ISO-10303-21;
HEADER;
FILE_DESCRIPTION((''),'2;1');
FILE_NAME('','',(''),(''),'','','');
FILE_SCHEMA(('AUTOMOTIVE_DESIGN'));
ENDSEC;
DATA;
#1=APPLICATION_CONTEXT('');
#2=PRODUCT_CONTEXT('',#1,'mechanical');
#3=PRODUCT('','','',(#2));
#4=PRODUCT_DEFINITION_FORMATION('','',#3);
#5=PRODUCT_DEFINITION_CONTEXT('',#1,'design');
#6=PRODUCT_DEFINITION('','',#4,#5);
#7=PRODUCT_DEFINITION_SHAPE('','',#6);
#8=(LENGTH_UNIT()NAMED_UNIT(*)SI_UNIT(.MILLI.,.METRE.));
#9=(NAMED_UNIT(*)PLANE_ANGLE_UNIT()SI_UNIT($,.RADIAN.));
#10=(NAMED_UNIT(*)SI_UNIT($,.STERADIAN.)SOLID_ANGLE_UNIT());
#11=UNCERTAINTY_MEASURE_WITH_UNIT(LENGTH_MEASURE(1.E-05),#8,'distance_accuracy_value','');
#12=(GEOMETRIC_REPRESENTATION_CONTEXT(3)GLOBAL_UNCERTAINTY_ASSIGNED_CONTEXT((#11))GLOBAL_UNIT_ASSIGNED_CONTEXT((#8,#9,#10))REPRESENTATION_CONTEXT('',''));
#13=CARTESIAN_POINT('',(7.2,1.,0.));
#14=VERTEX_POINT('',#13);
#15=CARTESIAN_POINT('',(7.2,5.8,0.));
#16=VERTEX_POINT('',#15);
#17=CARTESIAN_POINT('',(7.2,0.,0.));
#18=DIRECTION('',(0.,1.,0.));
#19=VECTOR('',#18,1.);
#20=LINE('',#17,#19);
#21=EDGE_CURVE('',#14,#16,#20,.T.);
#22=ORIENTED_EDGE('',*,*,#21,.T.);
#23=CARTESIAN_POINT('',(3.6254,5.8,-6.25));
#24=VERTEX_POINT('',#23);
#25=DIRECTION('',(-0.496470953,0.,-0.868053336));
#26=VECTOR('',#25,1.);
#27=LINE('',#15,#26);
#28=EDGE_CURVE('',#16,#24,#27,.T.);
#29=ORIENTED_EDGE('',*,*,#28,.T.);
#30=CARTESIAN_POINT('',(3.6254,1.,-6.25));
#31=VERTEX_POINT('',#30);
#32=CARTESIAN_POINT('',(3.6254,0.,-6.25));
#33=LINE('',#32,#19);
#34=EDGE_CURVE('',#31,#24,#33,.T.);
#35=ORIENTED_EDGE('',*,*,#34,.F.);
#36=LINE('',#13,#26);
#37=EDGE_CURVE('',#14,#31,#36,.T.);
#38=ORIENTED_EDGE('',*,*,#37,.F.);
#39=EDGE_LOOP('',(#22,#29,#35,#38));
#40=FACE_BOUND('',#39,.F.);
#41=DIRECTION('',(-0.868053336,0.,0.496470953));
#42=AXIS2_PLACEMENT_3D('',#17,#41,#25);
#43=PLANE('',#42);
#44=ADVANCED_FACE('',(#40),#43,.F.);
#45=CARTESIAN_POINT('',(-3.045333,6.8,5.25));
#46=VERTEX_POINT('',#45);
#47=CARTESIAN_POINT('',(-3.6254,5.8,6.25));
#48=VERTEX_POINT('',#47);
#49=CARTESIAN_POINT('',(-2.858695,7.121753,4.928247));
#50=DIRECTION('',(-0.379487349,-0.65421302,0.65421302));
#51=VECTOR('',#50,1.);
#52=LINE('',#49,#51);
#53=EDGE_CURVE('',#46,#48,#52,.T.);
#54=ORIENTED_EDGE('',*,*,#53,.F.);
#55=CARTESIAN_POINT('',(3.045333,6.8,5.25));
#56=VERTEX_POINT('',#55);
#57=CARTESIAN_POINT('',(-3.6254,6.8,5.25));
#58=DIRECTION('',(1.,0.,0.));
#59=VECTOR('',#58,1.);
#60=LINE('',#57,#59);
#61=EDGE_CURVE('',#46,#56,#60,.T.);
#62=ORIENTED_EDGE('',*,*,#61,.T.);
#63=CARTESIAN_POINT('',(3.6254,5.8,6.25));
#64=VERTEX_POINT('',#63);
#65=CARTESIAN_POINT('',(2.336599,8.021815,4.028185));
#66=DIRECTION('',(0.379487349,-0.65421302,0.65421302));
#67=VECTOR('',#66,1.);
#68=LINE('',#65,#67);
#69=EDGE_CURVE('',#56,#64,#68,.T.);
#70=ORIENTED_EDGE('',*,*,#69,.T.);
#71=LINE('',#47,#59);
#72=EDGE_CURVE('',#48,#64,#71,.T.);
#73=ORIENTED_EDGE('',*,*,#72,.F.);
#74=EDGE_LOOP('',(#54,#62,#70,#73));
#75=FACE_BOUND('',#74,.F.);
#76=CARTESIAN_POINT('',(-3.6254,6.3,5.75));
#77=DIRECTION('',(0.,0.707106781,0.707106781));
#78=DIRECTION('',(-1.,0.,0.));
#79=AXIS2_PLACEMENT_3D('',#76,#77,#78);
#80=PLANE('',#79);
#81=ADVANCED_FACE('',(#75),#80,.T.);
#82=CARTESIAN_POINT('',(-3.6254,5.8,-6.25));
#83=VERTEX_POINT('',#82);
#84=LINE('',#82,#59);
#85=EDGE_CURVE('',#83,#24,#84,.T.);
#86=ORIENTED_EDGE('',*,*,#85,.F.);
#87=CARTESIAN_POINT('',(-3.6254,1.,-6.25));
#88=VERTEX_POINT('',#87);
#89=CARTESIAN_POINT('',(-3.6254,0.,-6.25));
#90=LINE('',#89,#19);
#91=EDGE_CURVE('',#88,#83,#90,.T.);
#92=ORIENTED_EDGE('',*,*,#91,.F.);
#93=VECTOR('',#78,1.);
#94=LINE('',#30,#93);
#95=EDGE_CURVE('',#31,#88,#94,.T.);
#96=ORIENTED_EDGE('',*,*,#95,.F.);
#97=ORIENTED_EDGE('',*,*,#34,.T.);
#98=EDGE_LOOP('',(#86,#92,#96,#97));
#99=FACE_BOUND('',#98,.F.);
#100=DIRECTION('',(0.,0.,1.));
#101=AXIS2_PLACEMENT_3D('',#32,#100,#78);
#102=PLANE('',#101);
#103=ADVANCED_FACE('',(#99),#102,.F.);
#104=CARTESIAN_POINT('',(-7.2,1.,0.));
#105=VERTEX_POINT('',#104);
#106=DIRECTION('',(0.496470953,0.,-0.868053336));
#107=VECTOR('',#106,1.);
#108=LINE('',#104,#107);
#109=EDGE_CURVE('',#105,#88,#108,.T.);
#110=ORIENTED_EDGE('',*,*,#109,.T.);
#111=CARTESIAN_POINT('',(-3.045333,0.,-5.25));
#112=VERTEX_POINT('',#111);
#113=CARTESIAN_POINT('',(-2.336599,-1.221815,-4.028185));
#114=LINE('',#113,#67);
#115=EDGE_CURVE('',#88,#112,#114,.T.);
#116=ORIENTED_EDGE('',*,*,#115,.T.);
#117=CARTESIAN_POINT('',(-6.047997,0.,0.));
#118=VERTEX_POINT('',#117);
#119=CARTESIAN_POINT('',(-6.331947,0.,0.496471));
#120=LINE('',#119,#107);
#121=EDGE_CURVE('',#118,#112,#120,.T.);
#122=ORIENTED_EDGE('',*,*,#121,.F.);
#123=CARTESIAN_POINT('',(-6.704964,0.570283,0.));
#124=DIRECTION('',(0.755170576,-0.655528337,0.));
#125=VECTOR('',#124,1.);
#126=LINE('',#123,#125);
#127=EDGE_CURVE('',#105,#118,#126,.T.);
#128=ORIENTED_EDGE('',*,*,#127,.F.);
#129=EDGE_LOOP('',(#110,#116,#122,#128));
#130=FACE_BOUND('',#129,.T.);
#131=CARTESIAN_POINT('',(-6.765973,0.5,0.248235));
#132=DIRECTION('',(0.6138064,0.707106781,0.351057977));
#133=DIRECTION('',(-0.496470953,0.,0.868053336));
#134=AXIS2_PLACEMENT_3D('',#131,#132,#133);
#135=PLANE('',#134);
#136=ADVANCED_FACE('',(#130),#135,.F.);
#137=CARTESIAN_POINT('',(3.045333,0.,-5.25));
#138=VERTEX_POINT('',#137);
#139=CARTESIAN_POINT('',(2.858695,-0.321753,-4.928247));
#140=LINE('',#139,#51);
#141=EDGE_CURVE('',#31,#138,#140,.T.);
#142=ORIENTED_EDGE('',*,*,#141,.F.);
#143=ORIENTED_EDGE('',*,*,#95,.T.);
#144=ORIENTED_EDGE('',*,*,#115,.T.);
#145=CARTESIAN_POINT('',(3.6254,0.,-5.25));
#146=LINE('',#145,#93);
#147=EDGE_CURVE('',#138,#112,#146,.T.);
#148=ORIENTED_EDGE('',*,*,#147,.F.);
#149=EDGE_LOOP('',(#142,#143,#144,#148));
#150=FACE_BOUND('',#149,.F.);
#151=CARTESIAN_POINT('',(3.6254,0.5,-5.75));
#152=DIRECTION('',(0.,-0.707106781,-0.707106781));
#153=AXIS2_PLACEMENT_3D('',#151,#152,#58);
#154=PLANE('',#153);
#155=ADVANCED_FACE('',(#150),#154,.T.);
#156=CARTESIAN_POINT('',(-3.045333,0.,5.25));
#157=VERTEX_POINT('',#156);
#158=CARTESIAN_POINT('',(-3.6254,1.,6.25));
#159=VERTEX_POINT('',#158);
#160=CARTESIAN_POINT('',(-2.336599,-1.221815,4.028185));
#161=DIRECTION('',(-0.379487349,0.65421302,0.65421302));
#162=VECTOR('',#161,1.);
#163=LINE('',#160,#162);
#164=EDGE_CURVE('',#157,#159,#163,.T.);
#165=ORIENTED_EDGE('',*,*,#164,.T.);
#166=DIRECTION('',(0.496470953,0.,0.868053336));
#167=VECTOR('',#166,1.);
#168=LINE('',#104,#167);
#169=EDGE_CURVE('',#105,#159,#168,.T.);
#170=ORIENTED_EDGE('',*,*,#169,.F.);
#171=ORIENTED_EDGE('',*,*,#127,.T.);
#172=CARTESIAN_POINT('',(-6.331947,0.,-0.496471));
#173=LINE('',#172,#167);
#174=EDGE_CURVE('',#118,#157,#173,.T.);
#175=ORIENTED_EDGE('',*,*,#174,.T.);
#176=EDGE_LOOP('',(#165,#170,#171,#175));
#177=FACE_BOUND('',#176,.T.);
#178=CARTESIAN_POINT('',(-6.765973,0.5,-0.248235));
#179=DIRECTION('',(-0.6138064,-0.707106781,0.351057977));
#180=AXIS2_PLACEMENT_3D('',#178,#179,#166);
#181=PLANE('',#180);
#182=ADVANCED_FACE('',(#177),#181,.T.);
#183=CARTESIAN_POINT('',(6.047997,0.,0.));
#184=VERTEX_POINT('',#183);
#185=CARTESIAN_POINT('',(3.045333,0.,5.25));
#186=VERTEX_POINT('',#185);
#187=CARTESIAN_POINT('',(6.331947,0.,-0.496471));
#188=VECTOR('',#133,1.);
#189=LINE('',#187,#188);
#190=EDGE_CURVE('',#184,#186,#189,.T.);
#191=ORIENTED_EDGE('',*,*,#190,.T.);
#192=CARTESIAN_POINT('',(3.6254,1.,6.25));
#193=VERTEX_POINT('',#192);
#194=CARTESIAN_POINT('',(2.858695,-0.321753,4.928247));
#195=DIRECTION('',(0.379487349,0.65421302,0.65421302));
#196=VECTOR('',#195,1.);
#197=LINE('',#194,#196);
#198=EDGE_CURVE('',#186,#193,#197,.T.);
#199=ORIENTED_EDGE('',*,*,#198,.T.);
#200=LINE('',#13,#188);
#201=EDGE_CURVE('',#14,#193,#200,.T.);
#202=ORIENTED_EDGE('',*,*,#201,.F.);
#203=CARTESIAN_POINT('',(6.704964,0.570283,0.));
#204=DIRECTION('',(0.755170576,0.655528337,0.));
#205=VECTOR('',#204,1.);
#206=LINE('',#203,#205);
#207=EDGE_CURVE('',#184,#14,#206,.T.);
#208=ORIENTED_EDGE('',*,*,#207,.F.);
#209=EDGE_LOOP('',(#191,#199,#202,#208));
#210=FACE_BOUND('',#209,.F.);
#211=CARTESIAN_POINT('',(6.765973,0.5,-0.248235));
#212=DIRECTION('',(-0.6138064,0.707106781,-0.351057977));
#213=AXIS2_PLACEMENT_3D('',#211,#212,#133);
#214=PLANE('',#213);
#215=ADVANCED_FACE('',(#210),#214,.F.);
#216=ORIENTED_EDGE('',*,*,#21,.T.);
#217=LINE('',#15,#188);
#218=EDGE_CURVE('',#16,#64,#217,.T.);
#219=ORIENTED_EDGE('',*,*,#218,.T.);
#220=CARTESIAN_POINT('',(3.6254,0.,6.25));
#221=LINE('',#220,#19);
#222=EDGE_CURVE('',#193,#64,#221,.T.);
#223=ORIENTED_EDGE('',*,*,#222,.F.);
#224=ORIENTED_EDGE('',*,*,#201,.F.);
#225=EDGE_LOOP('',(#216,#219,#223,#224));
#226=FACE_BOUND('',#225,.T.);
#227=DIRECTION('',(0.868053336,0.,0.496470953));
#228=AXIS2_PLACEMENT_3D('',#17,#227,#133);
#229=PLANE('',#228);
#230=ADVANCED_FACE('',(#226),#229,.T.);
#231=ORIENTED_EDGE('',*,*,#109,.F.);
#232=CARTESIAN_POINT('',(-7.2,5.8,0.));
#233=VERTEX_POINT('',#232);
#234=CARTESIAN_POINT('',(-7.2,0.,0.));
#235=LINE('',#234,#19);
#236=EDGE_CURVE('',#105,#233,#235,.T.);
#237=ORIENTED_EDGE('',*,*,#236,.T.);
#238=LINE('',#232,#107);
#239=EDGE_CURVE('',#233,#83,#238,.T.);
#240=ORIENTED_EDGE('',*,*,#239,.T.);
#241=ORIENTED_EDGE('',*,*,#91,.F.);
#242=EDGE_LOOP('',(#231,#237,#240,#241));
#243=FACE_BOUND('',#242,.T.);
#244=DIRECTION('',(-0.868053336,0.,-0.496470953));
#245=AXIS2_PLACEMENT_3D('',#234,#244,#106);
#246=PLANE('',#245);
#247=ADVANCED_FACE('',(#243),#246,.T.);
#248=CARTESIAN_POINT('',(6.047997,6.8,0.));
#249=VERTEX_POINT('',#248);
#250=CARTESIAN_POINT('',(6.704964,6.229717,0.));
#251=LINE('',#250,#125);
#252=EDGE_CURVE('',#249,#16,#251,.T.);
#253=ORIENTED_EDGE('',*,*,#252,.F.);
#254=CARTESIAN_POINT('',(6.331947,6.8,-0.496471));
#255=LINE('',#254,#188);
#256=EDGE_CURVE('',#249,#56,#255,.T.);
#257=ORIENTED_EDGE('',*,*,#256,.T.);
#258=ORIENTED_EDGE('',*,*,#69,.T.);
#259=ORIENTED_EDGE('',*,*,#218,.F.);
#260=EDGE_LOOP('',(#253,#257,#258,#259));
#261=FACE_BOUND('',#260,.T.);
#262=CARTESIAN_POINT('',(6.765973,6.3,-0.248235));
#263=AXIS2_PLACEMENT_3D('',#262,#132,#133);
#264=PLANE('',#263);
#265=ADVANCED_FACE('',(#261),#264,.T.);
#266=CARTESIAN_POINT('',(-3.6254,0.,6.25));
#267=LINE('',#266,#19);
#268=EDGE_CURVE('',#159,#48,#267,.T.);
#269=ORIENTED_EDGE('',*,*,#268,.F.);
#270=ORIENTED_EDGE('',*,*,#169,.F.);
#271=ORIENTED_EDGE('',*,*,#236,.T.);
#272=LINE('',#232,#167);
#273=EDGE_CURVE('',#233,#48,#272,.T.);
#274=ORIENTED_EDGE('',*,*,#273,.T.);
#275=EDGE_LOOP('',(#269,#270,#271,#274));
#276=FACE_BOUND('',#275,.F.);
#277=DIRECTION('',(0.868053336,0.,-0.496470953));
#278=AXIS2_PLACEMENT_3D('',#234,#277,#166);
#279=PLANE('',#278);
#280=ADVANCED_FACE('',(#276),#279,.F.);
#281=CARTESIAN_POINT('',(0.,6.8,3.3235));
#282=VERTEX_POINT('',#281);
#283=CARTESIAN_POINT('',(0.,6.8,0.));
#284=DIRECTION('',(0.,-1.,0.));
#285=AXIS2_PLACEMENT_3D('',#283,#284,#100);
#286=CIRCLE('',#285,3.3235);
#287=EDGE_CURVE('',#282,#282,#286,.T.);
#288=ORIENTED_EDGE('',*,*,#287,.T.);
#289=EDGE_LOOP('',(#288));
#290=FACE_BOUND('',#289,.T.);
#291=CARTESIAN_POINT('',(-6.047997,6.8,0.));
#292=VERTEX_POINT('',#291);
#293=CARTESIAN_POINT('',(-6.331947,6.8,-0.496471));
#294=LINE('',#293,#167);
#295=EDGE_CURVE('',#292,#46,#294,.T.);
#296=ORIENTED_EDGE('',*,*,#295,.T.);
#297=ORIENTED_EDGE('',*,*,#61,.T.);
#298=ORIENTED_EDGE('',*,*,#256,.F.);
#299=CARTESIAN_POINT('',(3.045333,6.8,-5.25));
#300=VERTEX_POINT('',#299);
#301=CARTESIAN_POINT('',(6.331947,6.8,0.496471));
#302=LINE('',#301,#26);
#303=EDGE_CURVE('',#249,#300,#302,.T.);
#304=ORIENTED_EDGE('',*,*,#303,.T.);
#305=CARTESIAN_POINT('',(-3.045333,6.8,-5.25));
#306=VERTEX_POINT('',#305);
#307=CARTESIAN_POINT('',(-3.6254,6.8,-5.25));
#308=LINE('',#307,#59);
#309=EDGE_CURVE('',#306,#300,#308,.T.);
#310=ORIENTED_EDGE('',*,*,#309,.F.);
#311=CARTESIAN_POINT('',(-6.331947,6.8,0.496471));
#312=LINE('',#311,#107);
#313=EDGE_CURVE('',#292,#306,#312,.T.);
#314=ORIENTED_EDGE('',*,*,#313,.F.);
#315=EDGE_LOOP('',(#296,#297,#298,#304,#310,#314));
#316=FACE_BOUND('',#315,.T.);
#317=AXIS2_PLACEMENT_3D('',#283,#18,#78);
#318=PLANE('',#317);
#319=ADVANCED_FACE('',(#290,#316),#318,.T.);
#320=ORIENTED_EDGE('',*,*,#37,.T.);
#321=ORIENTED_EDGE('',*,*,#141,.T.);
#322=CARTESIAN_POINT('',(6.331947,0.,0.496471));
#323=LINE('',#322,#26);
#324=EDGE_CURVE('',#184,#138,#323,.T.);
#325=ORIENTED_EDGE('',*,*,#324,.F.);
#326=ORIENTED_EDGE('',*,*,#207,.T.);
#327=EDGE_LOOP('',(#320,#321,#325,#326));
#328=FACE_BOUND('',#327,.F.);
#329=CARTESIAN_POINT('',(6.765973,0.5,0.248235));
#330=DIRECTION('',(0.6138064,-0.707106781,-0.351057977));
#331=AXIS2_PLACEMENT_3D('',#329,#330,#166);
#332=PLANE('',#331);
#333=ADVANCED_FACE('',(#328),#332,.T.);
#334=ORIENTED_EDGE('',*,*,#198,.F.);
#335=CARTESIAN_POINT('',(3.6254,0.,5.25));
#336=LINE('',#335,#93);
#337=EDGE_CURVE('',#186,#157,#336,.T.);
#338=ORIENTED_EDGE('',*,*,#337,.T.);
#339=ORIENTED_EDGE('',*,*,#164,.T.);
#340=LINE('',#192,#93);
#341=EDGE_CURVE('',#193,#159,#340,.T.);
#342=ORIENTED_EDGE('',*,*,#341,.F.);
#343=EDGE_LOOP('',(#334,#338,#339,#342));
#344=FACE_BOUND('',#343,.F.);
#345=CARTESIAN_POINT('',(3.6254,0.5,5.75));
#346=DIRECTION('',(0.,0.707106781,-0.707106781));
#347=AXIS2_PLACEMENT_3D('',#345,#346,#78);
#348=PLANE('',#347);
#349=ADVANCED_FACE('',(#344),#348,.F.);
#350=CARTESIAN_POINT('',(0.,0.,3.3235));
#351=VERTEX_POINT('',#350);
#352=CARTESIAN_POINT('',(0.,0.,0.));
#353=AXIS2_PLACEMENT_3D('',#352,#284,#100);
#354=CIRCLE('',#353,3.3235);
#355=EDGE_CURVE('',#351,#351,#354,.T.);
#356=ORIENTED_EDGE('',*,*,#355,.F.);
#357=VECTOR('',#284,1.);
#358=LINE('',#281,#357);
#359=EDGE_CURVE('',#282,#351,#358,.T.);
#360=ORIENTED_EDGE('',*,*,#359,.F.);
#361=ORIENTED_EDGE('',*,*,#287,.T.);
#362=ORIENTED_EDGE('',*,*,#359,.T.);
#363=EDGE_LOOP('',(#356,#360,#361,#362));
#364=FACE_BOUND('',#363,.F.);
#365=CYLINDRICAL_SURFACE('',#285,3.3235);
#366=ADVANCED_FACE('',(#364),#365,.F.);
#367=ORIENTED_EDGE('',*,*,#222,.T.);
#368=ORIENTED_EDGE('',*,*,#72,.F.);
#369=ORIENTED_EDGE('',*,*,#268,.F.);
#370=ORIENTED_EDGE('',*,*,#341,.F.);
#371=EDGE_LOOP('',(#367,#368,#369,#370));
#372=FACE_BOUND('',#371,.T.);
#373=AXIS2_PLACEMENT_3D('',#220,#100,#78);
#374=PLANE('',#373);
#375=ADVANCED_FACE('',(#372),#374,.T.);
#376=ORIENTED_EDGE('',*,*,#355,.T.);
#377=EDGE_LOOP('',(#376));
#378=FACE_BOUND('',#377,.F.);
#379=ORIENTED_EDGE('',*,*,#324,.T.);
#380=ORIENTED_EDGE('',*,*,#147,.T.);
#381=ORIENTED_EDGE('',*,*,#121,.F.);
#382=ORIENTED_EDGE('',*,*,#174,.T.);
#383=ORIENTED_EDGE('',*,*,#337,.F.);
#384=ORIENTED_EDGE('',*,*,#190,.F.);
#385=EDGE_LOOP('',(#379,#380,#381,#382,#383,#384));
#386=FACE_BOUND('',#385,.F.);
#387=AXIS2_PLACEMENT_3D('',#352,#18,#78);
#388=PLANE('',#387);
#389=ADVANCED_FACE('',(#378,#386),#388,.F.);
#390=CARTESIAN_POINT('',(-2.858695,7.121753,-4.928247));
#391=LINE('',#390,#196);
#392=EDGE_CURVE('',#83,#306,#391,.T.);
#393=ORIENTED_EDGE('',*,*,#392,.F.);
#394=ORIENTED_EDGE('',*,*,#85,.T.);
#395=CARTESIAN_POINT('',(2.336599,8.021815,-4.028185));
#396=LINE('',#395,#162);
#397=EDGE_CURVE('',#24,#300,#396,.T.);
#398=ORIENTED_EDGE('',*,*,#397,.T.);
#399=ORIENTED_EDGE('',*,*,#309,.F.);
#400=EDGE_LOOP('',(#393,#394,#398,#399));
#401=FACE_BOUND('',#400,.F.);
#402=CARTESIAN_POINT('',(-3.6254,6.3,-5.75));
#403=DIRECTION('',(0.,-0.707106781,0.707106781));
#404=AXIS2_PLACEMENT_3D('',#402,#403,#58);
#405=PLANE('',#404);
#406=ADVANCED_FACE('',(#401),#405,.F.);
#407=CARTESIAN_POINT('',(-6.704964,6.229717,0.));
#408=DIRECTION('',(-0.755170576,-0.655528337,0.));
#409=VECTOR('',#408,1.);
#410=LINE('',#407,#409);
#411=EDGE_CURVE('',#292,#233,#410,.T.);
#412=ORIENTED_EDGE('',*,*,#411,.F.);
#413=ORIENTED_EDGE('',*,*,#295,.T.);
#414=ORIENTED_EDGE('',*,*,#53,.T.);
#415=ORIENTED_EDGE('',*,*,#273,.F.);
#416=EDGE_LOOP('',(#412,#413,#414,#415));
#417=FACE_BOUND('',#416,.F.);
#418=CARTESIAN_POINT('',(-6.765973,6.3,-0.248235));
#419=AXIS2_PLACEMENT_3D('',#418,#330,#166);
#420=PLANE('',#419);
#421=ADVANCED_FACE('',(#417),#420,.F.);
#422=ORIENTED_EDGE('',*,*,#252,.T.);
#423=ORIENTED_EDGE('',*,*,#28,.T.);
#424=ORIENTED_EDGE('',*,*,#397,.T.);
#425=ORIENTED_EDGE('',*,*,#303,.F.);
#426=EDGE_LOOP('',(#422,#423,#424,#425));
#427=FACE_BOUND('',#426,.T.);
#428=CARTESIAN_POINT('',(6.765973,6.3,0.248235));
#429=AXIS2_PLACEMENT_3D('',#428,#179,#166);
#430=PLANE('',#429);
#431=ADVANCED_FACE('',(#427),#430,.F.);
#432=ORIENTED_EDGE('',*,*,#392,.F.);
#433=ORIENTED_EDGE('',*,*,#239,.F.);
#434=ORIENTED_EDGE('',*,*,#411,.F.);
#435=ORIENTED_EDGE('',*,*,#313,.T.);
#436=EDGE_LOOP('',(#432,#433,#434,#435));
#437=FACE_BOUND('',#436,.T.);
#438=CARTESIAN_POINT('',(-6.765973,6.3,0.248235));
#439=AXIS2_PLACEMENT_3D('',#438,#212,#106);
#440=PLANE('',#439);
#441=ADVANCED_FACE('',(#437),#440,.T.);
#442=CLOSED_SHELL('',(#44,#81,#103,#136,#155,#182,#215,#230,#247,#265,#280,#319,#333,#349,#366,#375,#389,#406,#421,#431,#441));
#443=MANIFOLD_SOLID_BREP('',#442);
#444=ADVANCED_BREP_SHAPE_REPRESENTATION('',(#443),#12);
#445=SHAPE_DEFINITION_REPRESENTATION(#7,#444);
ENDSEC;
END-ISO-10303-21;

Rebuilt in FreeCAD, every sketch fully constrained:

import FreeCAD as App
import Part
import Sketcher

V = App.Vector
Q = App.Units.Quantity


def edges_at(feature, points):
    """Names of the edges that pass closest to the given points."""
    edges = feature.Shape.Edges
    near = lambda p: min(range(len(edges)), key=lambda i: edges[i].distToShape(Part.Vertex(*p))[0])
    return sorted({f"Edge{near(p) + 1}" for p in points})


def add_polygon(sketch, points):
    """Adds a closed chain of lines whose ends are joined by coincident constraints."""
    first, n = sketch.GeometryCount, len(points)
    for a, b in zip(points, points[1:] + points[:1]):
        sketch.addGeometry(Part.LineSegment(App.Vector(*a, 0), App.Vector(*b, 0)), False)
    for i in range(n):
        sketch.addConstraint(Sketcher.Constraint("Coincident", first + i, 2, first + (i + 1) % n, 1))

doc = App.newDocument("Part")
body = doc.addObject("PartDesign::Body", "Body")

# Sketch on XZ plane
sketch1 = body.newObject("Sketcher::SketchObject", "Sketch")
sketch1.AttachmentSupport = (doc.getObject("XZ_Plane"), [""])
sketch1.MapMode = "FlatFace"
add_polygon(sketch1, [(3.6254, -6.25), (-3.6254, -6.25), (-7.2, 0), (-3.6254, 6.25), (3.6254, 6.25), (7.2, 0)])  # lines 0-5
sketch1.addConstraint(Sketcher.Constraint("Horizontal", 0))
sketch1.addConstraint(Sketcher.Constraint("Horizontal", 3))
sketch1.addConstraint(Sketcher.Constraint("Symmetric", 0, 2, 3, 2, -1, 1))
sketch1.addConstraint(Sketcher.Constraint("Symmetric", 1, 2, 4, 2, -1, 1))
sketch1.addConstraint(Sketcher.Constraint("PointOnObject", 1, 2, -1))
sketch1.addConstraint(Sketcher.Constraint("Parallel", 2, 5))
sketch1.addConstraint(Sketcher.Constraint("Vertical", 0, 2, 2, 2))
sketch1.addConstraint(Sketcher.Constraint("DistanceY", 0, 2, 2, 2, Q("12.5 mm")))
sketch1.addConstraint(Sketcher.Constraint("DistanceX", 1, 2, 4, 2, Q("14.4 mm")))
sketch1.addConstraint(Sketcher.Constraint("Distance", 1, Q("7.2 mm")))
pad1 = body.newObject("PartDesign::Pad", "Pad")
pad1.Profile = sketch1
pad1.Length = 6.8
pad1.Reversed = True

# Sketch on XZ plane
sketch2 = body.newObject("Sketcher::SketchObject", "Sketch001")
sketch2.AttachmentSupport = (doc.getObject("XZ_Plane"), [""])
sketch2.MapMode = "FlatFace"
sketch2.AttachmentOffset = App.Placement(V(0, 0, -6.8), App.Rotation())
sketch2.addGeometry(Part.Circle(V(0, 0, 0), V(0, 0, 1), 3.3235), False)
sketch2.addConstraint(Sketcher.Constraint("Coincident", 0, 3, -1, 1))
sketch2.addConstraint(Sketcher.Constraint("Diameter", 0, Q("6.647 mm")))
doc.recompute()
hole = body.newObject("PartDesign::Hole", "Hole")
hole.Profile = sketch2
hole.ThreadType = "None"
hole.Diameter = 6.647
hole.DepthType = "ThroughAll"
hole.Reversed = True
doc.recompute()

chamfer = body.newObject("PartDesign::Chamfer", "Chamfer")
chamfer.Base = (hole, edges_at(hole, [
    (0, 6.8, 6.25),
    (5.413, 6.8, 3.125),
    (5.413, 6.8, -3.125),
    (0, 6.8, -6.25),
    (-5.413, 6.8, -3.125),
    (-5.413, 6.8, 3.125),
    (5.413, 0, 3.125),
    (5.413, 0, -3.125),
    (0, 0, -6.25),
    (-5.413, 0, -3.125),
    (-5.413, 0, 3.125),
    (0, 0, 6.25),
]))
chamfer.Size = 1

doc.recompute()
